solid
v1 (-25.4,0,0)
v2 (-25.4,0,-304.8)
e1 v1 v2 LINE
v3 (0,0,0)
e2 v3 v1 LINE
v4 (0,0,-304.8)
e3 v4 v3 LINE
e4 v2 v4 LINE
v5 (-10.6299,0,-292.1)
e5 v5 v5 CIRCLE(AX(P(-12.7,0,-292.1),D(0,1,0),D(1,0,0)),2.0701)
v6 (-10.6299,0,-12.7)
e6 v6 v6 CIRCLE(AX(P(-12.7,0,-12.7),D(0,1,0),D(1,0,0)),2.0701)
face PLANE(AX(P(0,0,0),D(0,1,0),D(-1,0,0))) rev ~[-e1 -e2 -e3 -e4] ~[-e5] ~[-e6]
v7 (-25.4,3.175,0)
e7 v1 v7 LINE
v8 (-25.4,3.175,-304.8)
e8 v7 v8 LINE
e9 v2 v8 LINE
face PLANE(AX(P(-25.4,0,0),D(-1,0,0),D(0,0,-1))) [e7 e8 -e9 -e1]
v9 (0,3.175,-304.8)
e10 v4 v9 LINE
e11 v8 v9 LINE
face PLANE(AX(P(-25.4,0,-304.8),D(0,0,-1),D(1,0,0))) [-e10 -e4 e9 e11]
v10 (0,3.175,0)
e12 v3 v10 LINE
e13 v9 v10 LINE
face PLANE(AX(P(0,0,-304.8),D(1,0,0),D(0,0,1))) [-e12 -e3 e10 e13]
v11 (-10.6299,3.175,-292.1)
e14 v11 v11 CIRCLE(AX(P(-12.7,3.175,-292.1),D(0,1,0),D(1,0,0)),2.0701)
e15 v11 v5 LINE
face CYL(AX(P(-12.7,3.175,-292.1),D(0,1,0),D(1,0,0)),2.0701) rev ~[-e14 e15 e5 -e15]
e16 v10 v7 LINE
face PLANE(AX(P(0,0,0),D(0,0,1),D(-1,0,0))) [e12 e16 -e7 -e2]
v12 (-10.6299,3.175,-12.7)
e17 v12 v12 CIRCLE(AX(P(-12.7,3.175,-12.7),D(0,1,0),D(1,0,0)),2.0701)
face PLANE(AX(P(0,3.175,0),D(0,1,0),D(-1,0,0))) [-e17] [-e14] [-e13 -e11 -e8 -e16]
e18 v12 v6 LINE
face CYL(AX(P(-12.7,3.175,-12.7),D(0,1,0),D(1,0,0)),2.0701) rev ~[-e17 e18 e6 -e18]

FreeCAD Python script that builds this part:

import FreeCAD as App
import Part
import Sketcher

V = App.Vector
Q = App.Units.Quantity


def add_polygon(sketch, points):
    """Adds a closed chain of lines whose ends are joined by coincident constraints."""
    first, n = sketch.GeometryCount, len(points)
    for a, b in zip(points, points[1:] + points[:1]):
        sketch.addGeometry(Part.LineSegment(App.Vector(*a, 0), App.Vector(*b, 0)), False)
    for i in range(n):
        sketch.addConstraint(Sketcher.Constraint("Coincident", first + i, 2, first + (i + 1) % n, 1))

doc = App.newDocument("Part")
body = doc.addObject("PartDesign::Body", "Body")

# Sketch on XZ plane
sketch1 = body.newObject("Sketcher::SketchObject", "Sketch")
sketch1.AttachmentSupport = (doc.getObject("XZ_Plane"), [""])
sketch1.MapMode = "FlatFace"
add_polygon(sketch1, [(-25, 0), (0, 0), (0, -305), (-25, -305)])  # lines 0-3
sketch1.addConstraint(Sketcher.Constraint("Horizontal", 0))
sketch1.addConstraint(Sketcher.Constraint("Vertical", 1))
sketch1.addConstraint(Sketcher.Constraint("Horizontal", 2))
sketch1.addConstraint(Sketcher.Constraint("Vertical", 3))
sketch1.addConstraint(Sketcher.Constraint("Coincident", 0, 2, -1, 1))
sketch1.addConstraint(Sketcher.Constraint("DistanceX", 0, 1, 0, 2, Q("1 in")))
sketch1.addConstraint(Sketcher.Constraint("DistanceY", 1, 2, 1, 1, Q("12 in")))
pad1 = body.newObject("PartDesign::Pad", "Pad")
pad1.Profile = sketch1
pad1.Length = Q("0.125 in")
pad1.Reversed = True

# Sketch on XZ plane
sketch2 = body.newObject("Sketcher::SketchObject", "Sketch001")
sketch2.AttachmentSupport = (doc.getObject("XZ_Plane"), [""])
sketch2.MapMode = "FlatFace"
sketch2.AttachmentOffset = App.Placement(V(0, 0, -0.125 * 25.4), App.Rotation())
sketch2.addGeometry(Part.Circle(V(-12.7, -12.7, 0), V(0, 0, 1), 2.1), False)
sketch2.addConstraint(Sketcher.Constraint("Diameter", 0, Q("0.163 in")))
sketch2.addConstraint(Sketcher.Constraint("DistanceX", 0, 3, -1, 1, Q("0.5 in")))
sketch2.addConstraint(Sketcher.Constraint("DistanceY", 0, 3, -1, 1, Q("0.5 in")))
pocket1 = body.newObject("PartDesign::Pocket", "Pocket")
pocket1.Profile = sketch2
pocket1.Length = Q("1 in")
pocket1.Reversed = True

# Sketch on XZ plane
sketch3 = body.newObject("Sketcher::SketchObject", "Sketch002")
sketch3.AttachmentSupport = (doc.getObject("XZ_Plane"), [""])
sketch3.MapMode = "FlatFace"
sketch3.AttachmentOffset = App.Placement(V(0, 0, -0.125 * 25.4), App.Rotation())
sketch3.addGeometry(Part.Circle(V(-12.7, -292.1, 0), V(0, 0, 1), 2.1), False)
sketch3.addConstraint(Sketcher.Constraint("Diameter", 0, Q("0.163 in")))
sketch3.addConstraint(Sketcher.Constraint("DistanceX", 0, 3, -1, 1, Q("0.5 in")))
sketch3.addConstraint(Sketcher.Constraint("DistanceY", 0, 3, -1, 1, Q("11.5 in")))
pocket2 = body.newObject("PartDesign::Pocket", "Pocket001")
pocket2.Profile = sketch3
pocket2.Length = Q("1 in")
pocket2.Reversed = True

doc.recompute()
